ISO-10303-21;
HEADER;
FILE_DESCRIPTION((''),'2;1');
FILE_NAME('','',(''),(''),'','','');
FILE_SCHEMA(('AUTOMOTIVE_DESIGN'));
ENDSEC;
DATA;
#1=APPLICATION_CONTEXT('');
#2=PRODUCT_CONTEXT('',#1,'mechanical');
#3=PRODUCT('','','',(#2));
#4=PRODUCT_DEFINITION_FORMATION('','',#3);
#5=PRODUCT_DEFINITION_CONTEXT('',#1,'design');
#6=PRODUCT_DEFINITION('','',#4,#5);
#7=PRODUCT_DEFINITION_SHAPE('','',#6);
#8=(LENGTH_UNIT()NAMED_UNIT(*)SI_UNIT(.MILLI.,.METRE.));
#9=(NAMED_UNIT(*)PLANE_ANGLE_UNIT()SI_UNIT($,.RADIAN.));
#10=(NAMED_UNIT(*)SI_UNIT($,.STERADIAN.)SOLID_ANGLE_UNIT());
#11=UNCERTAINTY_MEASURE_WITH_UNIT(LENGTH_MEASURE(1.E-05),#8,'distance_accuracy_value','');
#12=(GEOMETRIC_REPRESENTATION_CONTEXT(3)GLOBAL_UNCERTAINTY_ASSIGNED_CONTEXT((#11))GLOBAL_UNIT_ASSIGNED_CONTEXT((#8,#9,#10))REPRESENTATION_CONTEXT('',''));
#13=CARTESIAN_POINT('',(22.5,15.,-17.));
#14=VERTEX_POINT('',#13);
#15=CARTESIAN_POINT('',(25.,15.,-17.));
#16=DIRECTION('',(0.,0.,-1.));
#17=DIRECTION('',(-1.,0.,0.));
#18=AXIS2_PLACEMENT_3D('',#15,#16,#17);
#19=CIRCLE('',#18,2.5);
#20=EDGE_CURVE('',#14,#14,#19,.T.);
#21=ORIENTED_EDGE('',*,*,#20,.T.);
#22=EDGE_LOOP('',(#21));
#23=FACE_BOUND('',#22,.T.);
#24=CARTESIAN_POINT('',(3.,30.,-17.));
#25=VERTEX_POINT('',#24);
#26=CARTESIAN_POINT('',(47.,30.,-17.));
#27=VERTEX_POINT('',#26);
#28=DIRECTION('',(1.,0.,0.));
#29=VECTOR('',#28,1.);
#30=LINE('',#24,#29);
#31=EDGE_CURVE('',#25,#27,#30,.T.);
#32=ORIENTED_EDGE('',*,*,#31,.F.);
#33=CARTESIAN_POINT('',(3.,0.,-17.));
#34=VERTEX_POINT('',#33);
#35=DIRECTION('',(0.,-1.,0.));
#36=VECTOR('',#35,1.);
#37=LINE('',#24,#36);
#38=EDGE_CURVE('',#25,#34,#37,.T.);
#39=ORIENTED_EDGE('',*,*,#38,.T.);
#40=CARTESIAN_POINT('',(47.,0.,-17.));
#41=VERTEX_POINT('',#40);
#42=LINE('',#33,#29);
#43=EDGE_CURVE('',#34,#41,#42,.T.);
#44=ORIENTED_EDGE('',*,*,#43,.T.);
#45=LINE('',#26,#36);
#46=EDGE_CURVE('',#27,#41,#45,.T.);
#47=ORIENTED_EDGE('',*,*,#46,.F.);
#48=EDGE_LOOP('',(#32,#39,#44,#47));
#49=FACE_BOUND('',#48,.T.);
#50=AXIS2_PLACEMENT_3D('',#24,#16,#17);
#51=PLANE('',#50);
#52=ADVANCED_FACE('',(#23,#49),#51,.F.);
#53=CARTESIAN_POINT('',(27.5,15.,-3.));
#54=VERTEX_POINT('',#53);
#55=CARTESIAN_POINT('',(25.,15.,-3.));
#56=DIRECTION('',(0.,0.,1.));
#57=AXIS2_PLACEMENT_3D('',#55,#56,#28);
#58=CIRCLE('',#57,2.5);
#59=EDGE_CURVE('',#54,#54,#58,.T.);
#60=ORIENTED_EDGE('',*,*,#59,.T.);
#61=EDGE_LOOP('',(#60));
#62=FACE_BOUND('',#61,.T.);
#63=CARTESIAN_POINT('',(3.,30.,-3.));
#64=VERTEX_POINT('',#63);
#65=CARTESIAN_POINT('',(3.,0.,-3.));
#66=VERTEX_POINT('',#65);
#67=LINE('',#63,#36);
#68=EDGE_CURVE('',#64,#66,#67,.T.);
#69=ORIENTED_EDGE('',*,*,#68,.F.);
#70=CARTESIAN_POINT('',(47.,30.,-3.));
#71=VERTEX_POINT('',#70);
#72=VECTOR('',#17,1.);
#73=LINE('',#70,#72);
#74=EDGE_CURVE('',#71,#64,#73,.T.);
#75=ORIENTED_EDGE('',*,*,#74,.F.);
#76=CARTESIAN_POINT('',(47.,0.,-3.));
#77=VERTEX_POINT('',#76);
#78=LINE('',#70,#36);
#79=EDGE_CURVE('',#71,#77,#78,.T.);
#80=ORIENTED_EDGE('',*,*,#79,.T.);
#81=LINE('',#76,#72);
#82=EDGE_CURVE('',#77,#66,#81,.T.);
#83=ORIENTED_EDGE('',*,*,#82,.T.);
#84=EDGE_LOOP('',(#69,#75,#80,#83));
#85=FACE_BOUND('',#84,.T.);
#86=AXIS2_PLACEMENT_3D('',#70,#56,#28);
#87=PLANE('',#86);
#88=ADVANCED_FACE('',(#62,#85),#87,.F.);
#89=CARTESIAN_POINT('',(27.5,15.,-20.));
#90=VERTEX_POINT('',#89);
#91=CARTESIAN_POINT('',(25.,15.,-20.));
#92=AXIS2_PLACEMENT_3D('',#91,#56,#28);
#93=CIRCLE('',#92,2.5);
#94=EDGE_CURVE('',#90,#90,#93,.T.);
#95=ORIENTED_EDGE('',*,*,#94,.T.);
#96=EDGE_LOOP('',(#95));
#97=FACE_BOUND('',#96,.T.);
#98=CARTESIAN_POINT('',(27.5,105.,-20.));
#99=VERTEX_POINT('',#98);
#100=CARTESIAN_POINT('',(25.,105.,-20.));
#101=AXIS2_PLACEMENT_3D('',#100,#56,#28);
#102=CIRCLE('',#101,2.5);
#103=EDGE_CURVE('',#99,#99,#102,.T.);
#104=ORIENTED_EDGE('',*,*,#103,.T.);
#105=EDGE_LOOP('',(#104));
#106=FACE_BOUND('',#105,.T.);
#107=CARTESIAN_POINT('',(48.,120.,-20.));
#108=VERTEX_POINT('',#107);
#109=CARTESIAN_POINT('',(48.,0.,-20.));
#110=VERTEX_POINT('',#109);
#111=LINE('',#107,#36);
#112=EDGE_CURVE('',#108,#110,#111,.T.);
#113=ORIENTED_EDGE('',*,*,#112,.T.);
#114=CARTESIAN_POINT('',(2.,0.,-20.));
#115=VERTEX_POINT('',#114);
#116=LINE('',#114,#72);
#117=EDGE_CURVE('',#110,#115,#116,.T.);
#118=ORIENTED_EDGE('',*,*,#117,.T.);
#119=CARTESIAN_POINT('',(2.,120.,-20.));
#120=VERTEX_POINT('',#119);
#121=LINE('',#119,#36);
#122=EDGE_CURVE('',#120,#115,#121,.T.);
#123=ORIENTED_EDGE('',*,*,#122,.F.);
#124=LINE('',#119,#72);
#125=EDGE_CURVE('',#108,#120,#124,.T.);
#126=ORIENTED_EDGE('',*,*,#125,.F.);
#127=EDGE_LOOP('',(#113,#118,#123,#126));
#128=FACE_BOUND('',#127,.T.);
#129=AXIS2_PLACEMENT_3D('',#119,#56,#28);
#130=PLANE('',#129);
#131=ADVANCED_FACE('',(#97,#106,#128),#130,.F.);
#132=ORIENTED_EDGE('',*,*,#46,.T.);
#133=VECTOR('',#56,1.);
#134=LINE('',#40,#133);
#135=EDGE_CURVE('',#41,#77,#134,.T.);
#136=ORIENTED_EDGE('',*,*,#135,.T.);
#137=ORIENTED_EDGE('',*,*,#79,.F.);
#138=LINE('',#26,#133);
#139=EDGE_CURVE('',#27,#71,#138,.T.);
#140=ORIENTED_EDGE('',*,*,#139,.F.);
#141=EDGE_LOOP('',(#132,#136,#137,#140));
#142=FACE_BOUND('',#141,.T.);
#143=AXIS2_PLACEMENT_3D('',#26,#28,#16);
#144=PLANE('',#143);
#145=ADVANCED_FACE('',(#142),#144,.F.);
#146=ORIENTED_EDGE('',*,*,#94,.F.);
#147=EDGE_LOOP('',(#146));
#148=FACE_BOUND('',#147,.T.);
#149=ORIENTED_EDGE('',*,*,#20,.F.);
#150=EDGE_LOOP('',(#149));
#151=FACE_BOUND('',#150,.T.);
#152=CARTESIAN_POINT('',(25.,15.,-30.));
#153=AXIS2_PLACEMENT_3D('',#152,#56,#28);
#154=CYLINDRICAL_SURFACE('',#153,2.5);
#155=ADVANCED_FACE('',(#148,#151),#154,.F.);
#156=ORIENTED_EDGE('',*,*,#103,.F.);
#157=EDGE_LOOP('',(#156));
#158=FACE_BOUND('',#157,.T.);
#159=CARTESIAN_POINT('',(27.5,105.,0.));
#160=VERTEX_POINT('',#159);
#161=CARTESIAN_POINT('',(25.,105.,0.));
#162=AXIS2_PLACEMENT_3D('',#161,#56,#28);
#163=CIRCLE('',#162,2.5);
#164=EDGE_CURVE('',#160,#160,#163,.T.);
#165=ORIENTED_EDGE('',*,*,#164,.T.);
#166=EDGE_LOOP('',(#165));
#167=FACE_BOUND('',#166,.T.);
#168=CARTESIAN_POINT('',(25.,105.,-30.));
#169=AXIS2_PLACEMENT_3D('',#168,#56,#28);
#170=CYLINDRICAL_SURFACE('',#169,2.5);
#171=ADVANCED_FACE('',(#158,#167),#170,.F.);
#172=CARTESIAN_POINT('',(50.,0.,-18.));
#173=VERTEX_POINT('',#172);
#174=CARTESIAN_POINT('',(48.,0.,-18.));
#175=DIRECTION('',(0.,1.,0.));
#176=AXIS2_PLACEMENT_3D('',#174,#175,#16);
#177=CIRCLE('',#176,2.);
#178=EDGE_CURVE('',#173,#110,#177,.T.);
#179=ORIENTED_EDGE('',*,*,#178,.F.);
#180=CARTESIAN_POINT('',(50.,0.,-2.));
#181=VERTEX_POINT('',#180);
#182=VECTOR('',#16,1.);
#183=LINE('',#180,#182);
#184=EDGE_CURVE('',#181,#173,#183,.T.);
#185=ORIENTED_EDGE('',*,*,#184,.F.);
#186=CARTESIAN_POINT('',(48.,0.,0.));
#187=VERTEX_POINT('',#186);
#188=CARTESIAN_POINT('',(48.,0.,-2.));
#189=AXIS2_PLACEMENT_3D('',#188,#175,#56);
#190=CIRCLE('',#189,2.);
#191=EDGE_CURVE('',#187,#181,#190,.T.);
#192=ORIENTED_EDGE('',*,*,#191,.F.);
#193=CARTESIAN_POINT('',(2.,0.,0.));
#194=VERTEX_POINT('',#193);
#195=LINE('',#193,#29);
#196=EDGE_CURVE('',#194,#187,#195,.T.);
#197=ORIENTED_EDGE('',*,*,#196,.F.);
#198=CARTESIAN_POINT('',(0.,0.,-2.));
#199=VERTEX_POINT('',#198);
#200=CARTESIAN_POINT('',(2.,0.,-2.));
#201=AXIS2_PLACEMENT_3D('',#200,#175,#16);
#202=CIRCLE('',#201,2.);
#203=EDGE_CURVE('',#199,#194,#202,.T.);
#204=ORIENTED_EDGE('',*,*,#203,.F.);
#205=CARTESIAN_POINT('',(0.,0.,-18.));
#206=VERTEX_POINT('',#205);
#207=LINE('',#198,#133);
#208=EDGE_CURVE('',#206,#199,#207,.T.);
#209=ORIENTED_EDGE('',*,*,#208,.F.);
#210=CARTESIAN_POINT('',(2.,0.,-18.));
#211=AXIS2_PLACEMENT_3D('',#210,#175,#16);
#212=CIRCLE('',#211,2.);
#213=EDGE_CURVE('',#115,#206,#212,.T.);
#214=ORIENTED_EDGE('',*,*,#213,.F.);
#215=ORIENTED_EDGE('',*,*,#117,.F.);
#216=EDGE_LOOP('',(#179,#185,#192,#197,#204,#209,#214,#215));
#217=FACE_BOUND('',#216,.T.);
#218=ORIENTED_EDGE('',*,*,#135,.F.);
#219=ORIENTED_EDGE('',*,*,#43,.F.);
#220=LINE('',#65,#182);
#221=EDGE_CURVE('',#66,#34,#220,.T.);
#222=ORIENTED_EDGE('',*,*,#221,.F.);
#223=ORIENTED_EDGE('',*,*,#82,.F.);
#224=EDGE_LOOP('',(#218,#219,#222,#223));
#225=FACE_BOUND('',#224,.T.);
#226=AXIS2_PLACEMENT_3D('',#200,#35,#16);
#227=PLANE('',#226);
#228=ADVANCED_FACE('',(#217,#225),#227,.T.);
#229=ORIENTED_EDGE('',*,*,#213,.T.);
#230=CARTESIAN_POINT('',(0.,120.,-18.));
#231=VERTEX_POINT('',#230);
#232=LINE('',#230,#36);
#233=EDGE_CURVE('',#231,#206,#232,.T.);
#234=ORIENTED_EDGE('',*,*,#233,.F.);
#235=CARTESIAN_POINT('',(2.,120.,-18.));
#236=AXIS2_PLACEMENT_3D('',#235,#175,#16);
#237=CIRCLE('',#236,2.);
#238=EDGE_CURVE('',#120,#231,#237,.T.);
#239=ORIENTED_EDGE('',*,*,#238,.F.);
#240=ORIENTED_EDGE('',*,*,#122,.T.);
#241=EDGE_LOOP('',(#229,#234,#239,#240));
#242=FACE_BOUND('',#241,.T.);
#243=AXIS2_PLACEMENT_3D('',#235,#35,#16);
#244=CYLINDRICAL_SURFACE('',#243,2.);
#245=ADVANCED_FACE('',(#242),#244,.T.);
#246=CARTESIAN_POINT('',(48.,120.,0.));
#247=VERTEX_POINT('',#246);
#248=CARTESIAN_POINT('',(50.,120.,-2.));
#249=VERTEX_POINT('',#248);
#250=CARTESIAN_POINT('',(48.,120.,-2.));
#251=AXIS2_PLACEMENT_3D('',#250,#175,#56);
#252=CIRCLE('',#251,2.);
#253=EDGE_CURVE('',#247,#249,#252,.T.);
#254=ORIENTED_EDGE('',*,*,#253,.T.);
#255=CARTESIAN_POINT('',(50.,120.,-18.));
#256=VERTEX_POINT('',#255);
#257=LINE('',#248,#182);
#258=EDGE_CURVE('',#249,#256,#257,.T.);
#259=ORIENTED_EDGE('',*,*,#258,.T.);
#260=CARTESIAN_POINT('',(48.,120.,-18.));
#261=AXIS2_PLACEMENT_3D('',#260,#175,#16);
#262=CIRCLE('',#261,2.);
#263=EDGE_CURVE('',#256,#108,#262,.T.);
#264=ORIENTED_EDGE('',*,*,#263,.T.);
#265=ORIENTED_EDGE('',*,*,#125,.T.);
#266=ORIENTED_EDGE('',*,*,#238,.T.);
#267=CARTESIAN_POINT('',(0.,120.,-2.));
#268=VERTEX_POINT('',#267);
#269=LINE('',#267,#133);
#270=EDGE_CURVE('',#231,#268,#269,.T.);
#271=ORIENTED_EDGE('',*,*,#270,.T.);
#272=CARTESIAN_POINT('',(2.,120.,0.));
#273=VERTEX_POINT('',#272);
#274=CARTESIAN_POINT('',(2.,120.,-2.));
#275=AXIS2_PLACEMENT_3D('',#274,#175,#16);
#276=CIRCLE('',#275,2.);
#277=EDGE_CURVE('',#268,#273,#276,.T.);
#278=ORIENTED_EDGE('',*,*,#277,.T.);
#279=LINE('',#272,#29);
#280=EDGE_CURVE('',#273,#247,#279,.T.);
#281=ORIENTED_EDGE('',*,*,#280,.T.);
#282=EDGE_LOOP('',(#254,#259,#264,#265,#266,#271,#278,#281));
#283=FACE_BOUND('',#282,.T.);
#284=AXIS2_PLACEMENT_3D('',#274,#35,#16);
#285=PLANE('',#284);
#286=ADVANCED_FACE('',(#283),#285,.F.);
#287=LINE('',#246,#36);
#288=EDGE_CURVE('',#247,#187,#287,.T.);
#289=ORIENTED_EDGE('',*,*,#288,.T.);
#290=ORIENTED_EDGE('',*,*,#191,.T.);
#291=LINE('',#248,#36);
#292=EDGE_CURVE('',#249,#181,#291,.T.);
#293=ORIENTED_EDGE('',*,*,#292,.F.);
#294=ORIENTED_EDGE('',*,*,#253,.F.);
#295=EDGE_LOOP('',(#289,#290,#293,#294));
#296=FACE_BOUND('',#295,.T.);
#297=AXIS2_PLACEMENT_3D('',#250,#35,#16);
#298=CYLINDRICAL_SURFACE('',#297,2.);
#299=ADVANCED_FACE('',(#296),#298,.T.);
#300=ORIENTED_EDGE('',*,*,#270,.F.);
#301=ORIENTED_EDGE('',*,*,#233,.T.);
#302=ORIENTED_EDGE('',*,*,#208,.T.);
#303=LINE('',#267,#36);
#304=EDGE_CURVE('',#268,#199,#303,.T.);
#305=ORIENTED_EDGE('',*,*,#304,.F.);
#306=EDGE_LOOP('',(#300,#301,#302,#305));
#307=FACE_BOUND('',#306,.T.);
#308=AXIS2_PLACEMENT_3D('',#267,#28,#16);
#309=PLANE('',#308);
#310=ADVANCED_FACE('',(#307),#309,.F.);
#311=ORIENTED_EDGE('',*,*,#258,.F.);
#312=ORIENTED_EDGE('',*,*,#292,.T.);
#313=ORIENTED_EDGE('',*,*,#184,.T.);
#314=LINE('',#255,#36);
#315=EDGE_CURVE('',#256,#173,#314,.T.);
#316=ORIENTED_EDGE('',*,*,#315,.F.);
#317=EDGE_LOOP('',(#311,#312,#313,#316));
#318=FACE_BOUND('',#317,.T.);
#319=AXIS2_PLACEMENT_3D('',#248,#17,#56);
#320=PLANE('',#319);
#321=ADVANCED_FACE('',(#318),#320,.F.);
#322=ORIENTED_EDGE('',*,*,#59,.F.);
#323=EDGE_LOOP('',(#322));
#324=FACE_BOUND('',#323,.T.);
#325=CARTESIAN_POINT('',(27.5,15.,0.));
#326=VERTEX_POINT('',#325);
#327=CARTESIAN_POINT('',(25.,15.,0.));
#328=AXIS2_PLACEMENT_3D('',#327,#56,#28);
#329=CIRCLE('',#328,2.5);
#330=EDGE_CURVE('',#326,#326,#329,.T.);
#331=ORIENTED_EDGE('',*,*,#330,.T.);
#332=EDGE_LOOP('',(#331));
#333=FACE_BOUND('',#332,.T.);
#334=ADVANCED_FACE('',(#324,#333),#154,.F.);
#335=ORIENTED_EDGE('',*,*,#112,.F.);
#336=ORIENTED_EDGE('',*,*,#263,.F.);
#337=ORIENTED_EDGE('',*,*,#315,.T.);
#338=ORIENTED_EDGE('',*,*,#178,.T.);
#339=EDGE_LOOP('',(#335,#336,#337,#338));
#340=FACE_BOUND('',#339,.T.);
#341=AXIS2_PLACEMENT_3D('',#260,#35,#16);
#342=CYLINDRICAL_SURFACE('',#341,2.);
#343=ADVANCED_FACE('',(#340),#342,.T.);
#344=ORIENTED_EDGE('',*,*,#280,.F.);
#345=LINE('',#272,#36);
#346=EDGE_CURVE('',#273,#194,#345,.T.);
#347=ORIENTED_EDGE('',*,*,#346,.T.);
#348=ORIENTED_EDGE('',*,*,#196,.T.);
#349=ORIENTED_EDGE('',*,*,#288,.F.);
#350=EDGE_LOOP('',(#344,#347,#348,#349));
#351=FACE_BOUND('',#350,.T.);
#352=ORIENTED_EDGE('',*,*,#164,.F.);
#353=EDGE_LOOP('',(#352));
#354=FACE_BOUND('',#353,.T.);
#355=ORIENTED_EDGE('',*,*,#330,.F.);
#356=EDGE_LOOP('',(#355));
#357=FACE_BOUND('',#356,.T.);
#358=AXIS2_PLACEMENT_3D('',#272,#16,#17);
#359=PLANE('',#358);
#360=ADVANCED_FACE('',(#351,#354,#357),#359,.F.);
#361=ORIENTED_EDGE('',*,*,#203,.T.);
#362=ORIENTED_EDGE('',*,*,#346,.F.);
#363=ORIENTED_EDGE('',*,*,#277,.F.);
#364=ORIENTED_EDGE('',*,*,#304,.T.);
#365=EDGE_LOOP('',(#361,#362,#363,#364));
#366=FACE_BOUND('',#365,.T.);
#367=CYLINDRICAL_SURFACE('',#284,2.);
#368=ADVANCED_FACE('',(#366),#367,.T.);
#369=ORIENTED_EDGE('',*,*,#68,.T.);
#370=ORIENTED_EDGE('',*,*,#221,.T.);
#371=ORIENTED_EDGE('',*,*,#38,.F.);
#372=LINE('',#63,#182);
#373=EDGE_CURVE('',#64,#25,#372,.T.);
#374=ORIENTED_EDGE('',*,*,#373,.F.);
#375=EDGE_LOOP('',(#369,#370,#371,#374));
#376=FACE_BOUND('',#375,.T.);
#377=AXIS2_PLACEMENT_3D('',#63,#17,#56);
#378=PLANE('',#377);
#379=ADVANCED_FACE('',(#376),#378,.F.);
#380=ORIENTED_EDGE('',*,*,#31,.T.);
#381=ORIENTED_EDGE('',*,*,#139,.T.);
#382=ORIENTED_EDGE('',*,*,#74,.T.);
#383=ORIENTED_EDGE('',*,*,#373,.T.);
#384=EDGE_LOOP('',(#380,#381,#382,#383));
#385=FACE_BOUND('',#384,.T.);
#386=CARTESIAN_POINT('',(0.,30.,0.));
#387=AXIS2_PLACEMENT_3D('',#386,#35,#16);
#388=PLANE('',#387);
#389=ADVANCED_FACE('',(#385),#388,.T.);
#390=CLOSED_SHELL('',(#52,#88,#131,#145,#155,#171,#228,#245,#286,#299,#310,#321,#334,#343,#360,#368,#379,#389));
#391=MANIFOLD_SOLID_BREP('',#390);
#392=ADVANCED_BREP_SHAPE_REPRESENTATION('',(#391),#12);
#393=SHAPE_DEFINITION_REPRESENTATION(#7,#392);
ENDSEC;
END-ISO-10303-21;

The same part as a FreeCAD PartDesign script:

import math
import FreeCAD as App
import Part
import Sketcher
from FreeCAD import Vector


def add_polygon(sketch, points):
    """Adds a closed chain of lines whose ends are joined by coincident constraints."""
    first, n = sketch.GeometryCount, len(points)
    for a, b in zip(points, points[1:] + points[:1]):
        sketch.addGeometry(Part.LineSegment(App.Vector(*a, 0), App.Vector(*b, 0)), False)
    for i in range(n):
        sketch.addConstraint(Sketcher.Constraint("Coincident", first + i, 2, first + (i + 1) % n, 1))

doc = App.newDocument("Part")
body = doc.addObject("PartDesign::Body", "Body")

# Sketch on XZ plane
sketch1 = doc.addObject("Sketcher::SketchObject", "Sketch")
body.addObject(sketch1)
sketch1.AttachmentSupport = (doc.XZ_Plane, [""])
sketch1.MapMode = "FlatFace"
sketch1.addGeometry(Part.LineSegment(Vector(2, 0, 0), Vector(48, 0, 0)), False)
sketch1.addGeometry(Part.ArcOfCircle(Part.Circle(Vector(48, -2, 0), Vector(0, 0, 1), 2), math.radians(0), math.radians(90)), False)
sketch1.addGeometry(Part.LineSegment(Vector(50, -2, 0), Vector(50, -18, 0)), False)
sketch1.addGeometry(Part.ArcOfCircle(Part.Circle(Vector(48, -18, 0), Vector(0, 0, 1), 2), math.radians(-90), math.radians(0)), False)
sketch1.addGeometry(Part.LineSegment(Vector(48, -20, 0), Vector(2, -20, 0)), False)
sketch1.addGeometry(Part.ArcOfCircle(Part.Circle(Vector(2, -18, 0), Vector(0, 0, 1), 2), math.radians(-180), math.radians(-90)), False)
sketch1.addGeometry(Part.LineSegment(Vector(0, -18, 0), Vector(0, -2, 0)), False)
sketch1.addGeometry(Part.ArcOfCircle(Part.Circle(Vector(2, -2, 0), Vector(0, 0, 1), 2), math.radians(90), math.radians(180)), False)
sketch1.addConstraint(Sketcher.Constraint("Tangent", 0, 2, 1, 2))
sketch1.addConstraint(Sketcher.Constraint("Tangent", 1, 1, 2, 1))
sketch1.addConstraint(Sketcher.Constraint("Tangent", 2, 2, 3, 2))
sketch1.addConstraint(Sketcher.Constraint("Tangent", 3, 1, 4, 1))
sketch1.addConstraint(Sketcher.Constraint("Tangent", 4, 2, 5, 2))
sketch1.addConstraint(Sketcher.Constraint("Tangent", 5, 1, 6, 1))
sketch1.addConstraint(Sketcher.Constraint("Tangent", 6, 2, 7, 2))
sketch1.addConstraint(Sketcher.Constraint("Tangent", 7, 1, 0, 1))
sketch1.addConstraint(Sketcher.Constraint("Horizontal", 0))
sketch1.addConstraint(Sketcher.Constraint("Vertical", 2))
sketch1.addConstraint(Sketcher.Constraint("Horizontal", 4))
sketch1.addConstraint(Sketcher.Constraint("Vertical", 6))
sketch1.addConstraint(Sketcher.Constraint("Equal", 1, 3))
sketch1.addConstraint(Sketcher.Constraint("Equal", 3, 5))
sketch1.addConstraint(Sketcher.Constraint("Equal", 5, 7))
sketch1.addConstraint(Sketcher.Constraint("PointOnObject", 0, 2, -1))
sketch1.addConstraint(Sketcher.Constraint("PointOnObject", 5, 1, -2))
sketch1.addConstraint(Sketcher.Constraint("Radius", 1, 2.0))
sketch1.addConstraint(Sketcher.Constraint("DistanceX", 0, 1, 0, 2, 46.0))
sketch1.addConstraint(Sketcher.Constraint("DistanceY", 2, 2, 2, 1, 16.0))
pad1 = doc.addObject("PartDesign::Pad", "Pad")
body.addObject(pad1)
pad1.Profile = sketch1
pad1.Length = 120
pad1.Reversed = True

# Sketch on XZ plane
sketch2 = doc.addObject("Sketcher::SketchObject", "Sketch001")
body.addObject(sketch2)
sketch2.AttachmentSupport = (doc.XZ_Plane, [""])
sketch2.MapMode = "FlatFace"
add_polygon(sketch2, [(3, -3), (3, -17), (47, -17), (47, -3)])  # lines 0-3
sketch2.addConstraint(Sketcher.Constraint("Vertical", 0))
sketch2.addConstraint(Sketcher.Constraint("Horizontal", 1))
sketch2.addConstraint(Sketcher.Constraint("Vertical", 2))
sketch2.addConstraint(Sketcher.Constraint("Horizontal", 3))
sketch2.addConstraint(Sketcher.Constraint("DistanceX", 1, 1, 1, 2, 44.0))
sketch2.addConstraint(Sketcher.Constraint("DistanceY", 0, 2, 0, 1, 14.0))
sketch2.addConstraint(Sketcher.Constraint("DistanceX", -1, 1, 0, 2, 3.0))
sketch2.addConstraint(Sketcher.Constraint("DistanceY", 0, 2, -1, 1, 17.0))
pocket1 = doc.addObject("PartDesign::Pocket", "Pocket")
body.addObject(pocket1)
pocket1.Profile = sketch2
pocket1.Length = 30

# Sketch on XY plane
sketch3 = doc.addObject("Sketcher::SketchObject", "Sketch002")
body.addObject(sketch3)
sketch3.AttachmentSupport = (doc.XY_Plane, [""])
sketch3.MapMode = "FlatFace"
sketch3.addGeometry(Part.Circle(Vector(25, 105, 0), Vector(0, 0, 1), 2.5), False)
sketch3.addGeometry(Part.Circle(Vector(25, 15, 0), Vector(0, 0, 1), 2.5), False)
sketch3.addConstraint(Sketcher.Constraint("Equal", 0, 1))
sketch3.addConstraint(Sketcher.Constraint("Vertical", 0, 3, 1, 3))
sketch3.addConstraint(Sketcher.Constraint("Diameter", 0, 5.0))
sketch3.addConstraint(Sketcher.Constraint("DistanceX", -1, 1, 0, 3, 25.0))
sketch3.addConstraint(Sketcher.Constraint("DistanceY", -1, 1, 0, 3, 105.0))
sketch3.addConstraint(Sketcher.Constraint("DistanceY", -1, 1, 1, 3, 15.0))
pocket2 = doc.addObject("PartDesign::Pocket", "Pocket001")
body.addObject(pocket2)
pocket2.Profile = sketch3
pocket2.Length = 30

doc.recompute()
